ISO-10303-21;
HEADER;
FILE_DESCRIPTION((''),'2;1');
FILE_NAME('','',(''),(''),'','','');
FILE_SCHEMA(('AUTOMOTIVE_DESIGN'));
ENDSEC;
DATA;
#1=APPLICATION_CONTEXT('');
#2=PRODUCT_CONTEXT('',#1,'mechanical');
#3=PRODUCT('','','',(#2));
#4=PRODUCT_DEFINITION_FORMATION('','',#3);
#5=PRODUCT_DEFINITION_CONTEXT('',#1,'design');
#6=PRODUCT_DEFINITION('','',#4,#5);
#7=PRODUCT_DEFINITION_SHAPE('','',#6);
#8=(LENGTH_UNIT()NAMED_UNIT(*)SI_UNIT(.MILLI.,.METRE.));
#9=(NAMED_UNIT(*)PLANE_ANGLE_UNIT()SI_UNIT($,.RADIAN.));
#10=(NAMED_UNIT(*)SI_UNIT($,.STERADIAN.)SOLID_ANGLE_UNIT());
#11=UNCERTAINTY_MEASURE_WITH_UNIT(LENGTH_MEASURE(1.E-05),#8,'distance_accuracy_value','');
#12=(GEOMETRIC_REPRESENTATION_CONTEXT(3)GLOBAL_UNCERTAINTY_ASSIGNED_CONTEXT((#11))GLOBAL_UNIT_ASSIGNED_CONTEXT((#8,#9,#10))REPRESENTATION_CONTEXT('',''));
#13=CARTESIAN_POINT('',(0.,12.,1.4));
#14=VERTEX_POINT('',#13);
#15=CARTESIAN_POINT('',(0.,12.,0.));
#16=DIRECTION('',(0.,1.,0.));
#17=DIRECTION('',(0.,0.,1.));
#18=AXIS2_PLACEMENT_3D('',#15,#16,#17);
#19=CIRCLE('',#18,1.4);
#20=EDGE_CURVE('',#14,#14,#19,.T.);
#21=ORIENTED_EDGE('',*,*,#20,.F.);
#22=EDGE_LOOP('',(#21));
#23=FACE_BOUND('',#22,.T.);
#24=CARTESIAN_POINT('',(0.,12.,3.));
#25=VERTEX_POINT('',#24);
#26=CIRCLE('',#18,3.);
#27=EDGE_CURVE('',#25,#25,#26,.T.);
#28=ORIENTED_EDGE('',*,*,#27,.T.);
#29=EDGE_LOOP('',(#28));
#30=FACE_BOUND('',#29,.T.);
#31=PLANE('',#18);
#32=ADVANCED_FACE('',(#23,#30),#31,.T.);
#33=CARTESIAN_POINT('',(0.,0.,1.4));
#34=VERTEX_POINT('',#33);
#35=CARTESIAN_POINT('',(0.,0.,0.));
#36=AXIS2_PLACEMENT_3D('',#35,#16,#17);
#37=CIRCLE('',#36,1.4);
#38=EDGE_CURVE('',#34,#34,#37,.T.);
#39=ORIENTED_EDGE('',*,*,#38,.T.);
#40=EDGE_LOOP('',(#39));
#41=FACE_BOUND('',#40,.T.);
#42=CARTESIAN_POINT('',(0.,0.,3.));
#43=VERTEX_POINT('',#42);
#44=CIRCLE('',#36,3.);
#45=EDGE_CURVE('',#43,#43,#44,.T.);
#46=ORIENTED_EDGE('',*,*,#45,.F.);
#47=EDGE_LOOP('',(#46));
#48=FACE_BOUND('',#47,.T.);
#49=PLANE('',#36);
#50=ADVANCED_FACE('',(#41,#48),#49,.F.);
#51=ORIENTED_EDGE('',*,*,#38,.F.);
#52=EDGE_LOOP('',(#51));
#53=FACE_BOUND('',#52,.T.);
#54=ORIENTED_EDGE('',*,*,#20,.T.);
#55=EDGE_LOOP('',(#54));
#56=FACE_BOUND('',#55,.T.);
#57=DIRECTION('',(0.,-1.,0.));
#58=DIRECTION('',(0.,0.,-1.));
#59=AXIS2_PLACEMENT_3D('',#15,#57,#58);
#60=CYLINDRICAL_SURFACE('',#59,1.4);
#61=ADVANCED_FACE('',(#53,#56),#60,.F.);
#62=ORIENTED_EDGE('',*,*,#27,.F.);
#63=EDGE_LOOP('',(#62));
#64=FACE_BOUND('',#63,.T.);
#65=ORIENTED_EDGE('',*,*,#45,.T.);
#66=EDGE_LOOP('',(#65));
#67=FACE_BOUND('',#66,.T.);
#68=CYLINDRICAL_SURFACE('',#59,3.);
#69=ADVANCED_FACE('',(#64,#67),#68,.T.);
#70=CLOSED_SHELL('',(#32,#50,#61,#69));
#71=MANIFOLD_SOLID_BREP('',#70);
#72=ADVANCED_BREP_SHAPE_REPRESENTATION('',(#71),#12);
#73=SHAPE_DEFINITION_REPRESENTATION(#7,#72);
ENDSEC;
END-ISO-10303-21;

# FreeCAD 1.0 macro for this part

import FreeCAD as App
import Part
import Sketcher

V = App.Vector

doc = App.newDocument("Part")
body = doc.addObject("PartDesign::Body", "Body")

sketch1 = doc.addObject("Sketcher::SketchObject", "Sketch")
body.addObject(sketch1)
sketch1.AttachmentSupport = (doc.XZ_Plane, [""])
sketch1.MapMode = "FlatFace"
sketch1.addGeometry(Part.Circle(V(0, 0, 0), V(0, 0, 1), 3), False)
sketch1.addGeometry(Part.Circle(V(0, 0, 0), V(0, 0, 1), 1.4), False)
sketch1.addConstraint(Sketcher.Constraint("Coincident", 0, 3, -1, 1))
sketch1.addConstraint(Sketcher.Constraint("Coincident", 1, 3, -1, 1))
sketch1.addConstraint(Sketcher.Constraint("Diameter", 0, 6.0))
sketch1.addConstraint(Sketcher.Constraint("Diameter", 1, 2.8))
pad1 = doc.addObject("PartDesign::Pad", "Pad")
body.addObject(pad1)
pad1.Profile = sketch1
pad1.Length = 12
pad1.Reversed = True

doc.recompute()
